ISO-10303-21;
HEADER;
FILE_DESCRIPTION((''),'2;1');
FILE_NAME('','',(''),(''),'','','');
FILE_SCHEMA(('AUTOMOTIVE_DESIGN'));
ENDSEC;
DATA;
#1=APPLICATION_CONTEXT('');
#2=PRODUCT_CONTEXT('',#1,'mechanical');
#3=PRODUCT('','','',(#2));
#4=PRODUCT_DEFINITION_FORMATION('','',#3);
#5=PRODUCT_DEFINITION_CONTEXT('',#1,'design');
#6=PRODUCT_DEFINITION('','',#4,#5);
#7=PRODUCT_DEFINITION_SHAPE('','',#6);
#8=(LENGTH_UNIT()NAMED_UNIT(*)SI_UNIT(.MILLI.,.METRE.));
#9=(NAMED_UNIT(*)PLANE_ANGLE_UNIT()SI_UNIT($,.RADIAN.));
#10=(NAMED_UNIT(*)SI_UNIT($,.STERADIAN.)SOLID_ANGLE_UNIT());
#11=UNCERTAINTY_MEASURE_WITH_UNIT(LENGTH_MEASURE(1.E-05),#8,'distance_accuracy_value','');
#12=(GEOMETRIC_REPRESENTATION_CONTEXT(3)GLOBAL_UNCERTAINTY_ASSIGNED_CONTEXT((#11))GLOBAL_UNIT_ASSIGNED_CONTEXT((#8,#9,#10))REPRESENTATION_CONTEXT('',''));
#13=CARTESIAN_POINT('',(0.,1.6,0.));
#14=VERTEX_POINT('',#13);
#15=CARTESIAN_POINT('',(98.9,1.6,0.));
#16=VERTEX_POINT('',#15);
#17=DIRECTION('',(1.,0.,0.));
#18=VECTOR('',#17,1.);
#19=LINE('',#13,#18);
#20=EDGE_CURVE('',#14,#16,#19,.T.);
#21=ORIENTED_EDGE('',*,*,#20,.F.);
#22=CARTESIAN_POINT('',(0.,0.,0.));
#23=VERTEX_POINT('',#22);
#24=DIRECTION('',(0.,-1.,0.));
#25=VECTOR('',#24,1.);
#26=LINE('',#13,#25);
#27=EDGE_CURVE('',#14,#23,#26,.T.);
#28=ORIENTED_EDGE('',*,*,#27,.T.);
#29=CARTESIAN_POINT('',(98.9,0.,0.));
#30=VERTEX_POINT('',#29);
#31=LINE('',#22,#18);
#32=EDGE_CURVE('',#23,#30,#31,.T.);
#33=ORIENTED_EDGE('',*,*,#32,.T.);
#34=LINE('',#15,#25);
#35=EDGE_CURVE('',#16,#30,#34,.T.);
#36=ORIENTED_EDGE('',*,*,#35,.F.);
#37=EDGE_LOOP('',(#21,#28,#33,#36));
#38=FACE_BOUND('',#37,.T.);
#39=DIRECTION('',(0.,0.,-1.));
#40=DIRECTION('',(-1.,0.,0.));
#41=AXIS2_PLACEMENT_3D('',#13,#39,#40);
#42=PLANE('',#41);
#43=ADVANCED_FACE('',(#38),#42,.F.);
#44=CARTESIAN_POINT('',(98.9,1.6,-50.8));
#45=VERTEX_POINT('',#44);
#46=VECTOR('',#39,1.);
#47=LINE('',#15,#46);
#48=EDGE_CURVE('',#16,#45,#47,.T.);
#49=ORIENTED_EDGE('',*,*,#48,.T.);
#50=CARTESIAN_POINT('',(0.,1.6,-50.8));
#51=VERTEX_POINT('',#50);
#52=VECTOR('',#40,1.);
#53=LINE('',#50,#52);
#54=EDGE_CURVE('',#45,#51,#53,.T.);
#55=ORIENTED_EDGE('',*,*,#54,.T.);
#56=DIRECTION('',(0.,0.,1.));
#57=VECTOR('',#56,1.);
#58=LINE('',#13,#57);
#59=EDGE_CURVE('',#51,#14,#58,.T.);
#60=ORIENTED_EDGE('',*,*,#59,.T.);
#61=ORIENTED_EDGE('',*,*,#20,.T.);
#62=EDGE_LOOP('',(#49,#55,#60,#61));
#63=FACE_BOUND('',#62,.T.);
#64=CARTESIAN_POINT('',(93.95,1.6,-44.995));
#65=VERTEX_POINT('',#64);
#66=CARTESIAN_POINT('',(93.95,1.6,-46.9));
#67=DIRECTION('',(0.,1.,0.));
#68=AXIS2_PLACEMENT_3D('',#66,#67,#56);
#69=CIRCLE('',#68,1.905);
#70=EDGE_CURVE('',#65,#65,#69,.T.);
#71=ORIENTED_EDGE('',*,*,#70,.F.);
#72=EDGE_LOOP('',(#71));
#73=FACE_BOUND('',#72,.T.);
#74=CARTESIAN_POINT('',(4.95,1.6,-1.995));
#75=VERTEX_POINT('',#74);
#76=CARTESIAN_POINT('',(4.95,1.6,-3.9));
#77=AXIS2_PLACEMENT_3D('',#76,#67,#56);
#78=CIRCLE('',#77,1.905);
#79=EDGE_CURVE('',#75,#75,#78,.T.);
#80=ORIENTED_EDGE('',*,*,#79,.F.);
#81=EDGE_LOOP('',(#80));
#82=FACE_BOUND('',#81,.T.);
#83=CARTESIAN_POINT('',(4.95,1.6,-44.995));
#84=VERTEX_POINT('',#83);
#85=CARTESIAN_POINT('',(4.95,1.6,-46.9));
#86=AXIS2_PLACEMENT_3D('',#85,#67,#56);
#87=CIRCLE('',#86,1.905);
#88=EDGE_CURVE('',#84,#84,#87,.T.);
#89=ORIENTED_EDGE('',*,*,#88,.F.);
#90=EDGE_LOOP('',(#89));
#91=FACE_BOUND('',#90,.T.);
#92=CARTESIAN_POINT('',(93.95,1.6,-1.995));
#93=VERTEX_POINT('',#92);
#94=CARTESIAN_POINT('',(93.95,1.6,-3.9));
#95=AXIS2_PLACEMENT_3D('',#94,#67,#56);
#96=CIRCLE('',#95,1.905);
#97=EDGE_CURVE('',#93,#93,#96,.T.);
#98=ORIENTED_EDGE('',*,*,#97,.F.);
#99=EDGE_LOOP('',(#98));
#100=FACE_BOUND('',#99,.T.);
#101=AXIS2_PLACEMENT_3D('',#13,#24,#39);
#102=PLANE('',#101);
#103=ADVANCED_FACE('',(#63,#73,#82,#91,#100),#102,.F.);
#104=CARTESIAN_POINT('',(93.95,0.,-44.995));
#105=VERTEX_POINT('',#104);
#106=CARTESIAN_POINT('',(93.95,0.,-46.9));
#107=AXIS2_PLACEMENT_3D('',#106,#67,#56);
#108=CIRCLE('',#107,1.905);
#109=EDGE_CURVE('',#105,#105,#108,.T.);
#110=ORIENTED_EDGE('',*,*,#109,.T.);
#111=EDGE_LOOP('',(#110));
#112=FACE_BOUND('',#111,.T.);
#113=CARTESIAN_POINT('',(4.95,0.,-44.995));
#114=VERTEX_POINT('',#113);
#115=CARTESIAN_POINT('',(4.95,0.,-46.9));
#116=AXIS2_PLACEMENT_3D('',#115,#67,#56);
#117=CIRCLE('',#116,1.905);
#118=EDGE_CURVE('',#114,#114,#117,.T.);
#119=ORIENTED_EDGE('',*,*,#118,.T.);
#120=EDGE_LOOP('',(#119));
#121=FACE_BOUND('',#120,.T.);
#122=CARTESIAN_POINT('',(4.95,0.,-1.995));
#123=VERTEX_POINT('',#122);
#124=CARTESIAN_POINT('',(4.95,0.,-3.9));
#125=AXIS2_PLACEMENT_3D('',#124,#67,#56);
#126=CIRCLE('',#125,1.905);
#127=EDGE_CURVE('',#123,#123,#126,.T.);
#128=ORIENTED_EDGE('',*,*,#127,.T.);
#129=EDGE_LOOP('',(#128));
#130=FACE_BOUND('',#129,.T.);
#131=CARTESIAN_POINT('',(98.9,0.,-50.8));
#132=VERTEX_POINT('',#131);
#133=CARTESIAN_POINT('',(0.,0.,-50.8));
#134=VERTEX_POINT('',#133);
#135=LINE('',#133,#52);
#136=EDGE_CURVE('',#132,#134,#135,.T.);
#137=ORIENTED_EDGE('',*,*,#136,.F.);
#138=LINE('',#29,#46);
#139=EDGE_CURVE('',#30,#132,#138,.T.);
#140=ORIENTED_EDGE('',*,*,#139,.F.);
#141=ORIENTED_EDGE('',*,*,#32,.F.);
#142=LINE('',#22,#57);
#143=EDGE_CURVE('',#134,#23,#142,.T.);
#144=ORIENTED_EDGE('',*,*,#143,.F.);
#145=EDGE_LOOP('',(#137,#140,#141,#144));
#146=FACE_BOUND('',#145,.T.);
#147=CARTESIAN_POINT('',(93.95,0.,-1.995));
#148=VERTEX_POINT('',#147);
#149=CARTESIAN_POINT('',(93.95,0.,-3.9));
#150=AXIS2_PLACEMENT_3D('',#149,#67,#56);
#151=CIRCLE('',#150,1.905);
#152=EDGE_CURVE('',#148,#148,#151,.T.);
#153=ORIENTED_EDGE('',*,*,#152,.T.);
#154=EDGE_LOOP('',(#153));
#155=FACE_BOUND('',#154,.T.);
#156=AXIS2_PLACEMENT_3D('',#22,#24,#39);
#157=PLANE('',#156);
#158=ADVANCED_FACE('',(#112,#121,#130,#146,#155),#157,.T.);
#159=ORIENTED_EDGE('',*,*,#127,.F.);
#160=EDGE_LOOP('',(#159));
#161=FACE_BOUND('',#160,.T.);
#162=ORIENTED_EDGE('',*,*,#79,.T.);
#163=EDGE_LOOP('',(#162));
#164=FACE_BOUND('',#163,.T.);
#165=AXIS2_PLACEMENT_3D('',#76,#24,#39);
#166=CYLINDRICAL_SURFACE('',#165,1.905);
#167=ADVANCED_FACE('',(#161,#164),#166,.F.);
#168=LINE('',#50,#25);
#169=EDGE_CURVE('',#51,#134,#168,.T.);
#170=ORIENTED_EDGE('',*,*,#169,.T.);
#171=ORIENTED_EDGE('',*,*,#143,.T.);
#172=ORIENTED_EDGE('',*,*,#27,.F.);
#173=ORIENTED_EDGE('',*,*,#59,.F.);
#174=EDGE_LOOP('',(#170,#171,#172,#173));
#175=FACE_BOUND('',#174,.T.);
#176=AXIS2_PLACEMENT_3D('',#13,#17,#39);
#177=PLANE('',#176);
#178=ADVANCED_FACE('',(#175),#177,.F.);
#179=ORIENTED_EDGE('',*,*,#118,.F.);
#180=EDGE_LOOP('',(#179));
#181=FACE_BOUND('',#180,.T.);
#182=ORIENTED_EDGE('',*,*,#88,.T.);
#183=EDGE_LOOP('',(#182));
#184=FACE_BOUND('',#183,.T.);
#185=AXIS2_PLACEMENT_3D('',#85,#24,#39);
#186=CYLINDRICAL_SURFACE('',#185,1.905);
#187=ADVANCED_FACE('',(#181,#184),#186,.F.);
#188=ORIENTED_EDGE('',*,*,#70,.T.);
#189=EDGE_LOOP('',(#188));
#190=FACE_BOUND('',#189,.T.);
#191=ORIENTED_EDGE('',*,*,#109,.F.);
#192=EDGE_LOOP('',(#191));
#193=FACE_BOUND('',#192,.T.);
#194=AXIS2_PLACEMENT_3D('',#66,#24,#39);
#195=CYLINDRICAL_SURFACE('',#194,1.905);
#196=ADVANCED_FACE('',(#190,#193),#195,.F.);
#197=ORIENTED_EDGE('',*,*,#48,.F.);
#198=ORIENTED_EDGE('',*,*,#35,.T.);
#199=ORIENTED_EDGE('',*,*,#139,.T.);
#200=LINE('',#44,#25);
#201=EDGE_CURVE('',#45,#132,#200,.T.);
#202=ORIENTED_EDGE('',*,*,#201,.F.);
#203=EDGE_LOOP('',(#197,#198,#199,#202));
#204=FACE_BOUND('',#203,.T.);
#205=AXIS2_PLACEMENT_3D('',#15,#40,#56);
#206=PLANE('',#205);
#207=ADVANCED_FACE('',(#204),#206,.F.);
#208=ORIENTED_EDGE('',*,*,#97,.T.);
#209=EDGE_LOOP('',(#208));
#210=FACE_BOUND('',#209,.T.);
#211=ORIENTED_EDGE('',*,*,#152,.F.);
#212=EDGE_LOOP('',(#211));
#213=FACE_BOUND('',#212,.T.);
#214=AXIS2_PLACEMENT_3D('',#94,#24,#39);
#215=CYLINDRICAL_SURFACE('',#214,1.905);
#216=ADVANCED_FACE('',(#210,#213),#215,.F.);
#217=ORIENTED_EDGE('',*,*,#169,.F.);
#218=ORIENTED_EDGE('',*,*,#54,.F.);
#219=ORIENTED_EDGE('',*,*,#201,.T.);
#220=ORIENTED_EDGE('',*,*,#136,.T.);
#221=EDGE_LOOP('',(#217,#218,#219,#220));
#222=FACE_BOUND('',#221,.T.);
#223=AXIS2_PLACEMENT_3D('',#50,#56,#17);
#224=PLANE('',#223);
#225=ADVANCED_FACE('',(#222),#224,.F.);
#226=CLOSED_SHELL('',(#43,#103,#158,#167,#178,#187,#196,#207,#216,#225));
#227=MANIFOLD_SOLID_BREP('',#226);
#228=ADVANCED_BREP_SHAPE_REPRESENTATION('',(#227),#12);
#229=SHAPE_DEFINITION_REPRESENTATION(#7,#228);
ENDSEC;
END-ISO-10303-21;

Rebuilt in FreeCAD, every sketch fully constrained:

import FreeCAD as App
import Part
import Sketcher
Q = App.Units.Quantity


def add_polygon(sketch, points):
    """Adds a closed chain of lines whose ends are joined by coincident constraints."""
    first, n = sketch.GeometryCount, len(points)
    for a, b in zip(points, points[1:] + points[:1]):
        sketch.addGeometry(Part.LineSegment(App.Vector(*a, 0), App.Vector(*b, 0)), False)
    for i in range(n):
        sketch.addConstraint(Sketcher.Constraint("Coincident", first + i, 2, first + (i + 1) % n, 1))

doc = App.newDocument("Part")
body = doc.addObject("PartDesign::Body", "Body")

sketch1 = doc.addObject("Sketcher::SketchObject", "Sketch")
body.addObject(sketch1)
sketch1.AttachmentSupport = (doc.XZ_Plane, [""])
sketch1.MapMode = "FlatFace"
add_polygon(sketch1, [(0, -50.8), (0, 0), (98.9, 0), (98.9, -50.8)])
sketch1.addGeometry(Part.Circle(App.Vector(5, -3.9, 0), App.Vector(0, 0, 1), 1.9), False)
sketch1.addGeometry(Part.Circle(App.Vector(94, -3.9, 0), App.Vector(0, 0, 1), 1.9), False)
sketch1.addGeometry(Part.Circle(App.Vector(5, -46.9, 0), App.Vector(0, 0, 1), 1.9), False)
sketch1.addGeometry(Part.Circle(App.Vector(94, -46.9, 0), App.Vector(0, 0, 1), 1.9), False)
sketch1.addConstraint([
    Sketcher.Constraint("Vertical", 0),
    Sketcher.Constraint("Horizontal", 1),
    Sketcher.Constraint("Vertical", 2),
    Sketcher.Constraint("Horizontal", 3),
    Sketcher.Constraint("Coincident", 0, 2, -1, 1),
    Sketcher.Constraint("Equal", 4, 5),
    Sketcher.Constraint("Equal", 5, 6),
    Sketcher.Constraint("Equal", 6, 7),
    Sketcher.Constraint("Horizontal", 4, 3, 5, 3),
    Sketcher.Constraint("Horizontal", 6, 3, 7, 3),
    Sketcher.Constraint("Vertical", 4, 3, 6, 3),
    Sketcher.Constraint("Vertical", 5, 3, 7, 3),
    Sketcher.Constraint("Diameter", 4, Q("3.81 mm")),
    Sketcher.Constraint("DistanceX", 1, 1, 1, 2, Q("98.9 mm")),
    Sketcher.Constraint("DistanceY", 0, 1, 0, 2, Q("50.8 mm")),
    Sketcher.Constraint("DistanceX", 4, 3, 5, 3, Q("89 mm")),
    Sketcher.Constraint("DistanceY", 6, 3, 4, 3, Q("43 mm")),
    Sketcher.Constraint("DistanceY", 4, 3, -1, 1, Q("3.9 mm")),
    Sketcher.Constraint("DistanceX", -1, 1, 4, 3, Q("4.95 mm")),
])
pad1 = doc.addObject("PartDesign::Pad", "Pad")
body.addObject(pad1)
pad1.Profile = sketch1
pad1.Length = 1.6
pad1.Reversed = True

doc.recompute()
